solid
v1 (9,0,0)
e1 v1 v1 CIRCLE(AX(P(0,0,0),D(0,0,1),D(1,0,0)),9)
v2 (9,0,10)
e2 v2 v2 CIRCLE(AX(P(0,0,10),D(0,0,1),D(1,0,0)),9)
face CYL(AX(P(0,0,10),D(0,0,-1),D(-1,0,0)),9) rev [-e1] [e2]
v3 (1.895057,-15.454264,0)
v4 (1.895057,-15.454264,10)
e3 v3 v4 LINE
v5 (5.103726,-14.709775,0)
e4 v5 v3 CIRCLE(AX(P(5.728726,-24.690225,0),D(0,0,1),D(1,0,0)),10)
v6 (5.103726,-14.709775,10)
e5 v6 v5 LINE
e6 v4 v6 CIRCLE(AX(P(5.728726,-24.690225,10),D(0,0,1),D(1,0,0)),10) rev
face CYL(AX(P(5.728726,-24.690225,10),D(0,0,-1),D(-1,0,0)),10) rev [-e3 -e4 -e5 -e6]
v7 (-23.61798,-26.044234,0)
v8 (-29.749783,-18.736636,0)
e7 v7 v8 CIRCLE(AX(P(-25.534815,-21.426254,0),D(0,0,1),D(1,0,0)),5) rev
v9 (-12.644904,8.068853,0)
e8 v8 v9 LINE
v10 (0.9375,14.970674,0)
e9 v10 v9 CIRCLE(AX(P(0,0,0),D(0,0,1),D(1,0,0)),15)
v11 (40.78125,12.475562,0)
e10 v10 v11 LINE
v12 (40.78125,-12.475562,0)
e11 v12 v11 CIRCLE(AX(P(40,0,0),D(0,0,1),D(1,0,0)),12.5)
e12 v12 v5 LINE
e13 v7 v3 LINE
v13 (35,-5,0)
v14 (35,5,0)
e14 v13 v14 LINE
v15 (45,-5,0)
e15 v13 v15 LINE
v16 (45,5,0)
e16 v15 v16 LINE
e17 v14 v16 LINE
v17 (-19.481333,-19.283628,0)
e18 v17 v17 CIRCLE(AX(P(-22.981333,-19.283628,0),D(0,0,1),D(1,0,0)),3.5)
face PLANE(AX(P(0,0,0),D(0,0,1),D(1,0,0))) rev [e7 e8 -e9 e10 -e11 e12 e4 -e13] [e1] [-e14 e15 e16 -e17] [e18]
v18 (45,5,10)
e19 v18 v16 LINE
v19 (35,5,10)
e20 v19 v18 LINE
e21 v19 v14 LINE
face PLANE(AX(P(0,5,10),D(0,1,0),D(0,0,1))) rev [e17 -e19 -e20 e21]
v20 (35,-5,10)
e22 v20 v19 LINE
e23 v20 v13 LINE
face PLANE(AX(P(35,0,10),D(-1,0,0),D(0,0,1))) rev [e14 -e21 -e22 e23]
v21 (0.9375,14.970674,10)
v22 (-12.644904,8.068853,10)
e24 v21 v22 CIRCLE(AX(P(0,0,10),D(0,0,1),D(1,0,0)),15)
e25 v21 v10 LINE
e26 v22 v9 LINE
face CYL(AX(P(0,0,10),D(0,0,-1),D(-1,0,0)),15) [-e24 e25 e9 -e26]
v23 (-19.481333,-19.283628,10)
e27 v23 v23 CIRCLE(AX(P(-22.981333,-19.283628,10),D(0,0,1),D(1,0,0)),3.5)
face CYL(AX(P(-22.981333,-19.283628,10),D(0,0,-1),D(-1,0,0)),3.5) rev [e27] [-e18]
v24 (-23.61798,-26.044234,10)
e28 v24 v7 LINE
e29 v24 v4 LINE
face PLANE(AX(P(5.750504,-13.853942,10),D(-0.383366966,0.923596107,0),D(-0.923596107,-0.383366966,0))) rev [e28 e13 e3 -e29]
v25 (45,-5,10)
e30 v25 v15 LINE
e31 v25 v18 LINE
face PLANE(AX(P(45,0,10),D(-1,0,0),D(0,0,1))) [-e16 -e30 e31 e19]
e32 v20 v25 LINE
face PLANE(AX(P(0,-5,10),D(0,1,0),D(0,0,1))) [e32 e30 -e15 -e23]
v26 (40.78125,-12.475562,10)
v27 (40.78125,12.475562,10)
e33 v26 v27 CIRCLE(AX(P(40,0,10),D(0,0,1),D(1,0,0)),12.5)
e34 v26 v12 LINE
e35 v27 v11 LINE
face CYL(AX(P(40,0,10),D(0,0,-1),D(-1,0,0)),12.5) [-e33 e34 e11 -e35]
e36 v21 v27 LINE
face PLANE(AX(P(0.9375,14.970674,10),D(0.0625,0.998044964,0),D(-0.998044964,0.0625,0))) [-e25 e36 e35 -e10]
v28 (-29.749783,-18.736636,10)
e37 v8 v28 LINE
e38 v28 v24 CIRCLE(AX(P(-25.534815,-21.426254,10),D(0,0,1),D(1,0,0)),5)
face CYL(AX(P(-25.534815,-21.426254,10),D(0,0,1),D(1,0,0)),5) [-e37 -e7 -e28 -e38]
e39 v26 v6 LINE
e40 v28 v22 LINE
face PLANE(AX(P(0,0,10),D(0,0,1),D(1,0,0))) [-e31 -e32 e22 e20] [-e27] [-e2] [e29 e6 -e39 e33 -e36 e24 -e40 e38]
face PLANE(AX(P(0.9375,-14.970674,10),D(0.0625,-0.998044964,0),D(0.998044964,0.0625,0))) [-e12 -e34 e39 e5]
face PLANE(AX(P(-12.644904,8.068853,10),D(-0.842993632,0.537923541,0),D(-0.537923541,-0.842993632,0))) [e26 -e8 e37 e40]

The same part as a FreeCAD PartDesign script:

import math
import FreeCAD as App
import Part
import Sketcher
Q = App.Units.Quantity


def edges_at(feature, points):
    """Names of the edges that pass closest to the given points."""
    edges = feature.Shape.Edges
    near = lambda p: min(range(len(edges)), key=lambda i: edges[i].distToShape(Part.Vertex(*p))[0])
    return sorted({f"Edge{near(p) + 1}" for p in points})


def add_polygon(sketch, points):
    """Adds a closed chain of lines whose ends are joined by coincident constraints."""
    first, n = sketch.GeometryCount, len(points)
    for a, b in zip(points, points[1:] + points[:1]):
        sketch.addGeometry(Part.LineSegment(App.Vector(*a, 0), App.Vector(*b, 0)), False)
    for i in range(n):
        sketch.addConstraint(Sketcher.Constraint("Coincident", first + i, 2, first + (i + 1) % n, 1))

doc = App.newDocument("Part")
body = doc.addObject("PartDesign::Body", "Body")

sketch1 = body.newObject("Sketcher::SketchObject", "Sketch")
sketch1.AttachmentSupport = (doc.getObject("XY_Plane"), [""])
sketch1.MapMode = "FlatFace"
sketch1.addGeometry(Part.LineSegment(App.Vector(-12.6, 8.1, 0), App.Vector(-28, -16.1, 0)), False)
sketch1.addGeometry(Part.LineSegment(App.Vector(-28, -16.1, 0), App.Vector(-38.3, -32.1, 0)), False)
sketch1.addGeometry(Part.LineSegment(App.Vector(-38.3, -32.1, 0), App.Vector(-20.7, -24.8, 0)), False)
sketch1.addGeometry(Part.LineSegment(App.Vector(-20.7, -24.8, 0), App.Vector(3.4, -14.8, 0)), False)
sketch1.addGeometry(Part.LineSegment(App.Vector(3.4, -14.8, 0), App.Vector(40.8, -12.5, 0)), False)
sketch1.addGeometry(Part.ArcOfCircle(Part.Circle(App.Vector(40, 0, 0), App.Vector(0, 0, 1), 12.5), math.radians(-86), math.radians(86)), False)
sketch1.addGeometry(Part.LineSegment(App.Vector(40.8, 12.5, 0), App.Vector(0.9, 15, 0)), False)
sketch1.addGeometry(Part.ArcOfCircle(Part.Circle(App.Vector(0, 0, 0), App.Vector(0, 0, 1), 15), math.radians(86), math.radians(147)), False)
sketch1.addGeometry(Part.Circle(App.Vector(-23, -19.3, 0), App.Vector(0, 0, 1), 3.5), False)
sketch1.addGeometry(Part.Circle(App.Vector(0, 0, 0), App.Vector(0, 0, 1), 9), False)
add_polygon(sketch1, [(35, -5), (35, 5), (45, 5), (45, -5)])
sketch1.addConstraint(Sketcher.Constraint("Coincident", 0, 2, 1, 1))
sketch1.addConstraint(Sketcher.Constraint("Coincident", 1, 2, 2, 1))
sketch1.addConstraint(Sketcher.Constraint("Coincident", 2, 2, 3, 1))
sketch1.addConstraint(Sketcher.Constraint("Coincident", 3, 2, 4, 1))
sketch1.addConstraint(Sketcher.Constraint("Tangent", 4, 2, 5, 1))
sketch1.addConstraint(Sketcher.Constraint("Tangent", 5, 2, 6, 1))
sketch1.addConstraint(Sketcher.Constraint("Tangent", 6, 2, 7, 1))
sketch1.addConstraint(Sketcher.Constraint("Tangent", 7, 2, 0, 1))
sketch1.addConstraint(Sketcher.Constraint("Vertical", 10))
sketch1.addConstraint(Sketcher.Constraint("Horizontal", 11))
sketch1.addConstraint(Sketcher.Constraint("Vertical", 12))
sketch1.addConstraint(Sketcher.Constraint("Horizontal", 13))
sketch1.addConstraint(Sketcher.Constraint("Coincident", 7, 3, -1, 1))
sketch1.addConstraint(Sketcher.Constraint("Coincident", 9, 3, -1, 1))
sketch1.addConstraint(Sketcher.Constraint("Symmetric", 4, 2, 5, 2, -1))
sketch1.addConstraint(Sketcher.Constraint("Parallel", 0, 1))
sketch1.addConstraint(Sketcher.Constraint("Parallel", 2, 3))
sketch1.addConstraint(Sketcher.Constraint("Equal", 13, 10))
sketch1.addConstraint(Sketcher.Constraint("Equal", 1, 2))
sketch1.addConstraint(Sketcher.Constraint("Diameter", 8, Q("7 mm")))
sketch1.addConstraint(Sketcher.Constraint("Diameter", 9, Q("18 mm")))
sketch1.addConstraint(Sketcher.Constraint("Radius", 7, Q("15 mm")))
sketch1.addConstraint(Sketcher.Constraint("Radius", 5, Q("12.5 mm")))
sketch1.addConstraint(Sketcher.Constraint("DistanceX", 11, 1, 11, 2, Q("10 mm")))
sketch1.addConstraint(Sketcher.Constraint("DistanceX", -1, 1, 5, 3, Q("40 mm")))
sketch1.addConstraint(Sketcher.Constraint("DistanceX", -1, 1, 10, 2, Q("35 mm")))
sketch1.addConstraint(Sketcher.Constraint("DistanceY", -1, 1, 10, 2, Q("5 mm")))
sketch1.addConstraint(Sketcher.Constraint("DistanceX", 8, 3, 2, 2, Q("2.300202 mm")))
sketch1.addConstraint(Sketcher.Constraint("DistanceY", 8, 3, -1, 1, Q("19.283628 mm")))
sketch1.addConstraint(Sketcher.Constraint("DistanceY", 1, 2, -1, 1, Q("32.13938 mm")))
sketch1.addConstraint(Sketcher.Constraint("DistanceX", 2, 2, -1, 1, Q("20.681132 mm")))
sketch1.addConstraint(Sketcher.Constraint("DistanceX", 0, 2, 8, 3, Q("5.057962 mm")))
sketch1.addConstraint(Sketcher.Constraint("DistanceY", 8, 3, 0, 2, Q("3.227541 mm")))
pad1 = body.newObject("PartDesign::Pad", "Pad")
pad1.Profile = sketch1
pad1.Length = 10
doc.recompute()

fillet = body.newObject("PartDesign::Fillet", "Fillet")
fillet.Base = (pad1, edges_at(pad1, [(-38.302, -32.139, 5)]))
fillet.Radius = 5
doc.recompute()

fillet2 = body.newObject("PartDesign::Fillet", "Fillet001")
fillet2.Base = (fillet, edges_at(fillet, [(3.437, -14.814, 5)]))
fillet2.Radius = 10

doc.recompute()
